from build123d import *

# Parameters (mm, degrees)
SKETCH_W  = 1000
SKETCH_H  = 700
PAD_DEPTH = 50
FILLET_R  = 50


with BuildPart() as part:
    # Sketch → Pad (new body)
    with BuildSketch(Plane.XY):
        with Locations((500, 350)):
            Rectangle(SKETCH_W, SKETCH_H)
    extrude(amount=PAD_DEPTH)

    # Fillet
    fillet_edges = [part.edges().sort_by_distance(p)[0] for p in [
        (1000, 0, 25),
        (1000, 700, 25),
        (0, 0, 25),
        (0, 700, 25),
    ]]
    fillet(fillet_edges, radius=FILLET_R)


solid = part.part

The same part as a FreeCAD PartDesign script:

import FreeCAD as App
import Part
import Sketcher


def edges_at(feature, points):
    """Names of the edges that pass closest to the given points."""
    edges = feature.Shape.Edges
    near = lambda p: min(range(len(edges)), key=lambda i: edges[i].distToShape(Part.Vertex(*p))[0])
    return sorted({f"Edge{near(p) + 1}" for p in points})


def add_polygon(sketch, points):
    """Adds a closed chain of lines whose ends are joined by coincident constraints."""
    first, n = sketch.GeometryCount, len(points)
    for a, b in zip(points, points[1:] + points[:1]):
        sketch.addGeometry(Part.LineSegment(App.Vector(*a, 0), App.Vector(*b, 0)), False)
    for i in range(n):
        sketch.addConstraint(Sketcher.Constraint("Coincident", first + i, 2, first + (i + 1) % n, 1))

doc = App.newDocument("Part")
body = doc.addObject("PartDesign::Body", "Body")

# Sketch on XY plane
sketch1 = body.newObject("Sketcher::SketchObject", "Sketch")
sketch1.AttachmentSupport = (doc.getObject("XY_Plane"), [""])
sketch1.MapMode = "FlatFace"
add_polygon(sketch1, [(0, 700), (0, 0), (1000, 0), (1000, 700)])  # lines 0-3
sketch1.addConstraint(Sketcher.Constraint("Vertical", 0))
sketch1.addConstraint(Sketcher.Constraint("Horizontal", 1))
sketch1.addConstraint(Sketcher.Constraint("Vertical", 2))
sketch1.addConstraint(Sketcher.Constraint("Horizontal", 3))
sketch1.addConstraint(Sketcher.Constraint("Coincident", 0, 2, -1, 1))
sketch1.addConstraint(Sketcher.Constraint("DistanceX", 1, 1, 1, 2, 1000.0))
sketch1.addConstraint(Sketcher.Constraint("DistanceY", 0, 2, 0, 1, 700.0))
pad1 = body.newObject("PartDesign::Pad", "Pad")
pad1.Profile = sketch1
pad1.Length = 50
doc.recompute()

fillet = body.newObject("PartDesign::Fillet", "Fillet")
fillet.Base = (pad1, edges_at(pad1, [
    (1000, 0, 25),
    (1000, 700, 25),
    (0, 0, 25),
    (0, 700, 25),
]))
fillet.Radius = 50

doc.recompute()
